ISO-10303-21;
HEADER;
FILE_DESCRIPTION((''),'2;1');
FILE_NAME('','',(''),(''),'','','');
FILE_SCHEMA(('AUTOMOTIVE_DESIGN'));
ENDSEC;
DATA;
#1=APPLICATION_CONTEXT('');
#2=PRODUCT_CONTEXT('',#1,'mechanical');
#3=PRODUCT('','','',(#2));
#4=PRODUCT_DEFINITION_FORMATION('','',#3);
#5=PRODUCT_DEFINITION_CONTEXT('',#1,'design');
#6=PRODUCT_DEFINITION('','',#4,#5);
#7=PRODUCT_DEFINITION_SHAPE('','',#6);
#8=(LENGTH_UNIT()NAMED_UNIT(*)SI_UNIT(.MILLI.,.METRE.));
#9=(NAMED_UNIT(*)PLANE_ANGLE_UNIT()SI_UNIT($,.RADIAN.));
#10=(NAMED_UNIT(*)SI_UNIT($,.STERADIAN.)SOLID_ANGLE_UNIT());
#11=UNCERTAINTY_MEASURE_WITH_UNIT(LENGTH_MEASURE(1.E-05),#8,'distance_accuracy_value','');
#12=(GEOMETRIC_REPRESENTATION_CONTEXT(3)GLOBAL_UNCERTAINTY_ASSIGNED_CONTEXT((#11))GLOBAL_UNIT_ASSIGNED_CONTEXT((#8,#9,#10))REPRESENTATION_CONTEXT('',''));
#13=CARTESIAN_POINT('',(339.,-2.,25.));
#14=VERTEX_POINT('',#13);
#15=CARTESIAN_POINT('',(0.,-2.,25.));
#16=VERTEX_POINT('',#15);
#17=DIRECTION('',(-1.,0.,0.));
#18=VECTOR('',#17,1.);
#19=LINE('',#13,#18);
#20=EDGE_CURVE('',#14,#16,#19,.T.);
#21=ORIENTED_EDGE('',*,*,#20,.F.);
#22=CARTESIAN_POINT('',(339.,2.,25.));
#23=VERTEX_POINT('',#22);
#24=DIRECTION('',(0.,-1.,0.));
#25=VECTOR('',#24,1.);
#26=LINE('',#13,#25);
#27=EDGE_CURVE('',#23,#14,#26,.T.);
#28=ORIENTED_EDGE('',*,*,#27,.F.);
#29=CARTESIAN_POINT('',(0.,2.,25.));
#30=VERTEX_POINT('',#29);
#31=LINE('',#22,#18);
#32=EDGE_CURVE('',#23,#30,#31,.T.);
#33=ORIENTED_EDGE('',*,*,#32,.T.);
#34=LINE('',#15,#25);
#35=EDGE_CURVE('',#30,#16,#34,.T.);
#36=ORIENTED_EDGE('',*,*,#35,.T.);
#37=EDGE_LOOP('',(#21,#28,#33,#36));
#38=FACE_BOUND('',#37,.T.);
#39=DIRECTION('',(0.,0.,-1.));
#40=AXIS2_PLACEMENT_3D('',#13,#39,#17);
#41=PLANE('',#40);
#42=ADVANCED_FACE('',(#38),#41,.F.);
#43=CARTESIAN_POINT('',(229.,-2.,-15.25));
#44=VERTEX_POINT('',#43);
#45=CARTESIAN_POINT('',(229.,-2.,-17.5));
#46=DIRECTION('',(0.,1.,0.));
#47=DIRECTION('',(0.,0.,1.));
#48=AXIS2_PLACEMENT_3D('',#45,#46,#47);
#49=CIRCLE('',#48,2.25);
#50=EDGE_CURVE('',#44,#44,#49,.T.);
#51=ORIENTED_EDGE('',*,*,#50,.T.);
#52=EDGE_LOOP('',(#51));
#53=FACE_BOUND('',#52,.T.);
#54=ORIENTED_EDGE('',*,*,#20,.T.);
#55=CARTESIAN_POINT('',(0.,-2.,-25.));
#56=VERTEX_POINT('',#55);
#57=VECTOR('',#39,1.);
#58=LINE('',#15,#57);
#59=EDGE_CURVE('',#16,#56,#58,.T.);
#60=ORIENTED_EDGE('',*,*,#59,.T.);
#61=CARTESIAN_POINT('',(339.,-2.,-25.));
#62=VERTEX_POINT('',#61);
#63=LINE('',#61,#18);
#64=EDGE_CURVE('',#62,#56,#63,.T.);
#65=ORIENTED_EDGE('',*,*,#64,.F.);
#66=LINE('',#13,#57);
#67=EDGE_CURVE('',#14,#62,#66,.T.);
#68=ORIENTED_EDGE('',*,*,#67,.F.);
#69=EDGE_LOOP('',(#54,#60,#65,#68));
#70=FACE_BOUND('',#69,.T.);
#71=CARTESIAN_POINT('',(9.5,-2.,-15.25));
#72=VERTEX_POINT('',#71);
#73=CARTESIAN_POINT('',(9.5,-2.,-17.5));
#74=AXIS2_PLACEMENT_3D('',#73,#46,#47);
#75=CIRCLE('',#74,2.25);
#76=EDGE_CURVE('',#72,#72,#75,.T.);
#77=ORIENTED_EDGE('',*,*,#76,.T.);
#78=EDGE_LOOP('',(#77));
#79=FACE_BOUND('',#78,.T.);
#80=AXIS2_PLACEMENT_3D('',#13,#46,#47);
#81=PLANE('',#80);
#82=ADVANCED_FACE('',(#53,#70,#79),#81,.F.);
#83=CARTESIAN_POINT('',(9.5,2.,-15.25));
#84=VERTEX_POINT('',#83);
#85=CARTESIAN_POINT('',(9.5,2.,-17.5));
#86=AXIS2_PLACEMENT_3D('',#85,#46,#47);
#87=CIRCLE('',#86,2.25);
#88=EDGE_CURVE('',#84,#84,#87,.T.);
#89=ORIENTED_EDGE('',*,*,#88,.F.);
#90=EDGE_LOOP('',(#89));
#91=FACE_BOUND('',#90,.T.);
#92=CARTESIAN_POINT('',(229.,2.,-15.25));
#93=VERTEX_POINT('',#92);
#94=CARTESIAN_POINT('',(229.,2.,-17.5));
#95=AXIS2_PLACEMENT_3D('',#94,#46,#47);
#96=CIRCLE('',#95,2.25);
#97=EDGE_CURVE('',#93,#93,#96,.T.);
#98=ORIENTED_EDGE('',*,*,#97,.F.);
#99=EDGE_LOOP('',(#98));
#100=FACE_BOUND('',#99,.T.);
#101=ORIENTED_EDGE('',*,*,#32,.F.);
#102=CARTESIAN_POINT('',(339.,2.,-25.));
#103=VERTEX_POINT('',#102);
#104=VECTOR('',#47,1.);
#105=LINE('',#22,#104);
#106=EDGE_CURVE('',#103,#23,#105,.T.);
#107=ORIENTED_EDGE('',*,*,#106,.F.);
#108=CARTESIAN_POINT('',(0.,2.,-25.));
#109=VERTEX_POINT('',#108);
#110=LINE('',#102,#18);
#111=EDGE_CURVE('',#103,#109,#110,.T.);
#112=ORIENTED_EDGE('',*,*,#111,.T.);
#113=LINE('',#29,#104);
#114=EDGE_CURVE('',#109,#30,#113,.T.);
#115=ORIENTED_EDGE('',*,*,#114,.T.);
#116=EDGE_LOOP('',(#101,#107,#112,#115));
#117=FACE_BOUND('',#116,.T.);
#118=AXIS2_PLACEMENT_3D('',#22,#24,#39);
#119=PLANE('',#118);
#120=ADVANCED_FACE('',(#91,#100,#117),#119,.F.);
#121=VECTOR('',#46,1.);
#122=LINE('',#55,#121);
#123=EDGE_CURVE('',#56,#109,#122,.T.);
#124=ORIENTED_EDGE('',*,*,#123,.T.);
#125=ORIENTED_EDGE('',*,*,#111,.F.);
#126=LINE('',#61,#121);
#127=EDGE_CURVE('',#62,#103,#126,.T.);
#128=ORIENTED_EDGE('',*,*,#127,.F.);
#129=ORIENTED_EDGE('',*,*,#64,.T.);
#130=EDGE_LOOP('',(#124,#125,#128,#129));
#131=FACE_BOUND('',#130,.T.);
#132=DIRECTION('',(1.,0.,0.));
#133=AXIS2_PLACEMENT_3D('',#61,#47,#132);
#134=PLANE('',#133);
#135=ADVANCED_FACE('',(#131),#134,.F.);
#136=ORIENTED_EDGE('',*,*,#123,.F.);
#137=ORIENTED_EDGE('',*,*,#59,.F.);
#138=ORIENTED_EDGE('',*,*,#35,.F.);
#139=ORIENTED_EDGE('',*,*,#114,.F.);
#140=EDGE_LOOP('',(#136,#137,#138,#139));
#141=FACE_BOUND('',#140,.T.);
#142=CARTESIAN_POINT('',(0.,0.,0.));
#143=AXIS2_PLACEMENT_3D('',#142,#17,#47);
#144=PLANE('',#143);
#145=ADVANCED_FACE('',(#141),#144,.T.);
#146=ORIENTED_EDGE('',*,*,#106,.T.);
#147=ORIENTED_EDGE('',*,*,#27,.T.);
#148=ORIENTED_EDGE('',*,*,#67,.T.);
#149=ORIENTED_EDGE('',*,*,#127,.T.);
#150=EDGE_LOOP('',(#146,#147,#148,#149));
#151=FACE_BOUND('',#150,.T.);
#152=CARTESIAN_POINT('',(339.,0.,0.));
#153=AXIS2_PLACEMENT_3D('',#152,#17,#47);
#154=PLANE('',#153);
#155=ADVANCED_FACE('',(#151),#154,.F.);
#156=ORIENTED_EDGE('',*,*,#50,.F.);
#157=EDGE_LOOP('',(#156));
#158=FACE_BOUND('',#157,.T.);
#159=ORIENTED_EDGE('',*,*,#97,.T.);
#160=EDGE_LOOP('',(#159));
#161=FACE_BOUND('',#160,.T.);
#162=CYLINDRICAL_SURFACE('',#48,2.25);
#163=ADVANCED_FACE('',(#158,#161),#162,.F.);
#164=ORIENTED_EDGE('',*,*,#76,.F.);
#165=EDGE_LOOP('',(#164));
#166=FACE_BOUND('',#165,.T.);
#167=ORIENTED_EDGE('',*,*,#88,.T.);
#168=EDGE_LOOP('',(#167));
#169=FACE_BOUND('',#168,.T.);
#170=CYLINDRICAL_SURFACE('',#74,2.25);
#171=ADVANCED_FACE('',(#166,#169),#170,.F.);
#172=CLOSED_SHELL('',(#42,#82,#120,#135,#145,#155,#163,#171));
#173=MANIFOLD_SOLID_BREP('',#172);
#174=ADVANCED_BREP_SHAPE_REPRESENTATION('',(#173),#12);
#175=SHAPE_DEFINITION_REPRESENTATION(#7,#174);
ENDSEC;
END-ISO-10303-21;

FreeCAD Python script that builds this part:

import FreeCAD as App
import Part
import Sketcher

V = App.Vector


def add_polygon(sketch, points):
    """Adds a closed chain of lines whose ends are joined by coincident constraints."""
    first, n = sketch.GeometryCount, len(points)
    for a, b in zip(points, points[1:] + points[:1]):
        sketch.addGeometry(Part.LineSegment(App.Vector(*a, 0), App.Vector(*b, 0)), False)
    for i in range(n):
        sketch.addConstraint(Sketcher.Constraint("Coincident", first + i, 2, first + (i + 1) % n, 1))

doc = App.newDocument("Part")
body = doc.addObject("PartDesign::Body", "Body")

# Sketch on YZ plane
sketch1 = doc.addObject("Sketcher::SketchObject", "Sketch")
body.addObject(sketch1)
sketch1.AttachmentSupport = (doc.YZ_Plane, [""])
sketch1.MapMode = "FlatFace"
add_polygon(sketch1, [(2, 25), (-2, 25), (-2, -25), (2, -25)])  # lines 0-3
sketch1.addConstraint(Sketcher.Constraint("Horizontal", 0))
sketch1.addConstraint(Sketcher.Constraint("Vertical", 1))
sketch1.addConstraint(Sketcher.Constraint("Horizontal", 2))
sketch1.addConstraint(Sketcher.Constraint("Vertical", 3))
sketch1.addConstraint(Sketcher.Constraint("Symmetric", 0, 2, 2, 2, -1, 1))
sketch1.addConstraint(Sketcher.Constraint("DistanceX", 0, 2, 0, 1, 4.0))
sketch1.addConstraint(Sketcher.Constraint("DistanceY", 1, 2, 1, 1, 50.0))
pad1 = doc.addObject("PartDesign::Pad", "Pad")
body.addObject(pad1)
pad1.Profile = sketch1
pad1.Length = 339

# Sketch on XZ plane
sketch2 = doc.addObject("Sketcher::SketchObject", "Sketch001")
body.addObject(sketch2)
sketch2.AttachmentSupport = (doc.XZ_Plane, [""])
sketch2.MapMode = "FlatFace"
sketch2.AttachmentOffset = App.Placement(V(0, 0, -2), App.Rotation())
sketch2.addGeometry(Part.Circle(V(9.5, -17.5, 0), V(0, 0, 1), 2.2), False)
sketch2.addGeometry(Part.Circle(V(229, -17.5, 0), V(0, 0, 1), 2.2), False)
sketch2.addConstraint(Sketcher.Constraint("Equal", 0, 1))
sketch2.addConstraint(Sketcher.Constraint("Horizontal", 0, 3, 1, 3))
sketch2.addConstraint(Sketcher.Constraint("Diameter", 0, 4.5))
sketch2.addConstraint(Sketcher.Constraint("DistanceX", -1, 1, 1, 3, 229.0))
sketch2.addConstraint(Sketcher.Constraint("DistanceX", -1, 1, 0, 3, 9.5))
sketch2.addConstraint(Sketcher.Constraint("DistanceY", 0, 3, -1, 1, 17.5))
pocket1 = doc.addObject("PartDesign::Pocket", "Pocket")
body.addObject(pocket1)
pocket1.Profile = sketch2
pocket1.Type = "ThroughAll"
pocket1.Reversed = True

doc.recompute()
